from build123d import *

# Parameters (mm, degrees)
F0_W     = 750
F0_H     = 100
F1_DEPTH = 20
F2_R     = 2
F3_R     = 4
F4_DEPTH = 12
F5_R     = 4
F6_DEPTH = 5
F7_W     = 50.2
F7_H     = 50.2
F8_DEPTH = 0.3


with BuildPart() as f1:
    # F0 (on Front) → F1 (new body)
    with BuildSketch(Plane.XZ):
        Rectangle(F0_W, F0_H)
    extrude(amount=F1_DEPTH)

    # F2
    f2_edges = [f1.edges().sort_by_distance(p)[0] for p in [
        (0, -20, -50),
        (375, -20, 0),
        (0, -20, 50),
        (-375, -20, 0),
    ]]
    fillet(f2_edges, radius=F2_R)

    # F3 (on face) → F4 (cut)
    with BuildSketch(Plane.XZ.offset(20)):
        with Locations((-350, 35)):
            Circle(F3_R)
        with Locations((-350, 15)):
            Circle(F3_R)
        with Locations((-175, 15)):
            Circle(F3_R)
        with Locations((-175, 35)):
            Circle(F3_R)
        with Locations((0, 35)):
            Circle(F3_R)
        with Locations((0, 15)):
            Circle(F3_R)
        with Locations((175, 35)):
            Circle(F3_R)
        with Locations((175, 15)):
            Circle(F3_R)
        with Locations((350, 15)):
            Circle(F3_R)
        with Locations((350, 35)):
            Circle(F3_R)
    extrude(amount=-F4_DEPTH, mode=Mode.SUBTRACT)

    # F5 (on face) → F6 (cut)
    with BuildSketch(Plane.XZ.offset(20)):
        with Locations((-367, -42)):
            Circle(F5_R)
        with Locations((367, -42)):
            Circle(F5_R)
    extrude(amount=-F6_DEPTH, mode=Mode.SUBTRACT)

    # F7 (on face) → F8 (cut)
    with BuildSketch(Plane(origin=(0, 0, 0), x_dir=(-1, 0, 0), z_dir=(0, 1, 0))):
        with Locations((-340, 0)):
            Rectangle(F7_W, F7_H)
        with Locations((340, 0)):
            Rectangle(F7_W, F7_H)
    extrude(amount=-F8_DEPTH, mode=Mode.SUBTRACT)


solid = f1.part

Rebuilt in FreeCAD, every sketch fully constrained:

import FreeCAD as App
import Part
import Sketcher
from FreeCAD import Vector
Q = App.Units.Quantity


def edges_at(feature, points):
    """Names of the edges that pass closest to the given points."""
    edges = feature.Shape.Edges
    near = lambda p: min(range(len(edges)), key=lambda i: edges[i].distToShape(Part.Vertex(*p))[0])
    return sorted({f"Edge{near(p) + 1}" for p in points})

doc = App.newDocument("Part")
body = doc.addObject("PartDesign::Body", "Body")

sketch1 = doc.addObject("Sketcher::SketchObject", "Sketch")
body.addObject(sketch1)
sketch1.AttachmentSupport = (doc.XZ_Plane, [""])
sketch1.MapMode = "FlatFace"
sketch1.addGeometry([
    Part.LineSegment(Vector(-375, 50, 0), Vector(-375, -50, 0)),
    Part.LineSegment(Vector(-375, -50, 0), Vector(375, -50, 0)),
    Part.LineSegment(Vector(375, -50, 0), Vector(375, 50, 0)),
    Part.LineSegment(Vector(375, 50, 0), Vector(-375, 50, 0)),
], False)
sketch1.addConstraint([
    Sketcher.Constraint("Coincident", 0, 2, 1, 1),
    Sketcher.Constraint("Coincident", 1, 2, 2, 1),
    Sketcher.Constraint("Coincident", 2, 2, 3, 1),
    Sketcher.Constraint("Coincident", 3, 2, 0, 1),
    Sketcher.Constraint("Vertical", 0),
    Sketcher.Constraint("Horizontal", 1),
    Sketcher.Constraint("Vertical", 2),
    Sketcher.Constraint("Horizontal", 3),
    Sketcher.Constraint("Symmetric", 0, 2, 2, 2, -1, 1),
    Sketcher.Constraint("DistanceX", 1, 1, 1, 2, Q("750 mm")),
    Sketcher.Constraint("DistanceY", 0, 2, 0, 1, Q("100 mm")),
])
pad1 = doc.addObject("PartDesign::Pad", "Pad")
body.addObject(pad1)
pad1.Profile = sketch1
pad1.Length = 20
doc.recompute()

fillet = doc.addObject("PartDesign::Fillet", "Fillet")
body.addObject(fillet)
fillet.Base = (pad1, edges_at(pad1, [
    (0, -20, -50),
    (375, -20, 0),
    (0, -20, 50),
    (-375, -20, 0),
]))
fillet.Radius = 2

sketch2 = doc.addObject("Sketcher::SketchObject", "Sketch001")
body.addObject(sketch2)
sketch2.AttachmentSupport = (doc.XZ_Plane, [""])
sketch2.MapMode = "FlatFace"
sketch2.AttachmentOffset = App.Placement(Vector(0, 0, 20), App.Rotation())
sketch2.addGeometry([
    Part.Circle(Vector(-350, 35, 0), Vector(0, 0, 1), 4),
    Part.Circle(Vector(-350, 15, 0), Vector(0, 0, 1), 4),
    Part.Circle(Vector(-175, 15, 0), Vector(0, 0, 1), 4),
    Part.Circle(Vector(-175, 35, 0), Vector(0, 0, 1), 4),
    Part.Circle(Vector(0, 35, 0), Vector(0, 0, 1), 4),
    Part.Circle(Vector(0, 15, 0), Vector(0, 0, 1), 4),
    Part.Circle(Vector(175, 35, 0), Vector(0, 0, 1), 4),
    Part.Circle(Vector(175, 15, 0), Vector(0, 0, 1), 4),
    Part.Circle(Vector(350, 15, 0), Vector(0, 0, 1), 4),
    Part.Circle(Vector(350, 35, 0), Vector(0, 0, 1), 4),
], False)
sketch2.addConstraint([
    Sketcher.Constraint("Equal", 0, 1),
    Sketcher.Constraint("Equal", 1, 2),
    Sketcher.Constraint("Equal", 2, 3),
    Sketcher.Constraint("Equal", 3, 4),
    Sketcher.Constraint("Equal", 4, 5),
    Sketcher.Constraint("Equal", 5, 6),
    Sketcher.Constraint("Equal", 6, 7),
    Sketcher.Constraint("Equal", 7, 8),
    Sketcher.Constraint("Equal", 8, 9),
    Sketcher.Constraint("Symmetric", 3, 3, 6, 3, -2),
    Sketcher.Constraint("Symmetric", 2, 3, 7, 3, -2),
    Sketcher.Constraint("Symmetric", 1, 3, 8, 3, -2),
    Sketcher.Constraint("Symmetric", 0, 3, 9, 3, -2),
    Sketcher.Constraint("PointOnObject", 4, 3, -2),
    Sketcher.Constraint("PointOnObject", 5, 3, -2),
    Sketcher.Constraint("Horizontal", 1, 3, 2, 3),
    Sketcher.Constraint("Horizontal", 0, 3, 3, 3),
    Sketcher.Constraint("Horizontal", 3, 3, 4, 3),
    Sketcher.Constraint("Horizontal", 2, 3, 5, 3),
    Sketcher.Constraint("Vertical", 0, 3, 1, 3),
    Sketcher.Constraint("Vertical", 2, 3, 3, 3),
    Sketcher.Constraint("Diameter", 0, Q("8 mm")),
    Sketcher.Constraint("DistanceX", 0, 3, -1, 1, Q("350 mm")),
    Sketcher.Constraint("DistanceY", -1, 1, 0, 3, Q("35 mm")),
    Sketcher.Constraint("DistanceY", -1, 1, 1, 3, Q("15 mm")),
    Sketcher.Constraint("DistanceX", 2, 3, -1, 1, Q("175 mm")),
])
pocket1 = doc.addObject("PartDesign::Pocket", "Pocket")
body.addObject(pocket1)
pocket1.Profile = sketch2
pocket1.Length = 12

sketch3 = doc.addObject("Sketcher::SketchObject", "Sketch002")
body.addObject(sketch3)
sketch3.AttachmentSupport = (doc.XZ_Plane, [""])
sketch3.MapMode = "FlatFace"
sketch3.AttachmentOffset = App.Placement(Vector(0, 0, 20), App.Rotation())
sketch3.addGeometry([
    Part.Circle(Vector(-367, -42, 0), Vector(0, 0, 1), 4),
    Part.Circle(Vector(367, -42, 0), Vector(0, 0, 1), 4),
], False)
sketch3.addConstraint([
    Sketcher.Constraint("Equal", 0, 1),
    Sketcher.Constraint("Symmetric", 0, 3, 1, 3, -2),
    Sketcher.Constraint("Diameter", 0, Q("8 mm")),
    Sketcher.Constraint("DistanceX", 0, 3, -1, 1, Q("367 mm")),
    Sketcher.Constraint("DistanceY", 0, 3, -1, 1, Q("42 mm")),
])
pocket2 = doc.addObject("PartDesign::Pocket", "Pocket001")
body.addObject(pocket2)
pocket2.Profile = sketch3
pocket2.Length = 5

sketch4 = doc.addObject("Sketcher::SketchObject", "Sketch003")
body.addObject(sketch4)
sketch4.AttachmentSupport = (doc.XZ_Plane, [""])
sketch4.MapMode = "FlatFace"
sketch4.addGeometry([
    Part.LineSegment(Vector(365, 25, 0), Vector(365, -25, 0)),
    Part.LineSegment(Vector(365, -25, 0), Vector(315, -25, 0)),
    Part.LineSegment(Vector(315, -25, 0), Vector(315, 25, 0)),
    Part.LineSegment(Vector(315, 25, 0), Vector(365, 25, 0)),
    Part.LineSegment(Vector(-315, 25, 0), Vector(-315, -25, 0)),
    Part.LineSegment(Vector(-315, -25, 0), Vector(-365, -25, 0)),
    Part.LineSegment(Vector(-365, -25, 0), Vector(-365, 25, 0)),
    Part.LineSegment(Vector(-365, 25, 0), Vector(-315, 25, 0)),
], False)
sketch4.addConstraint([
    Sketcher.Constraint("Coincident", 0, 2, 1, 1),
    Sketcher.Constraint("Coincident", 1, 2, 2, 1),
    Sketcher.Constraint("Coincident", 2, 2, 3, 1),
    Sketcher.Constraint("Coincident", 3, 2, 0, 1),
    Sketcher.Constraint("Coincident", 4, 2, 5, 1),
    Sketcher.Constraint("Coincident", 5, 2, 6, 1),
    Sketcher.Constraint("Coincident", 6, 2, 7, 1),
    Sketcher.Constraint("Coincident", 7, 2, 4, 1),
    Sketcher.Constraint("Vertical", 0),
    Sketcher.Constraint("Horizontal", 1),
    Sketcher.Constraint("Vertical", 2),
    Sketcher.Constraint("Horizontal", 3),
    Sketcher.Constraint("Vertical", 4),
    Sketcher.Constraint("Horizontal", 5),
    Sketcher.Constraint("Vertical", 6),
    Sketcher.Constraint("Horizontal", 7),
    Sketcher.Constraint("Symmetric", 2, 2, 4, 2, -1, 1),
    Sketcher.Constraint("Symmetric", 0, 2, 6, 2, -1, 1),
    Sketcher.Constraint("Horizontal", 1, 2, 4, 2),
    Sketcher.Constraint("Equal", 7, 0),
    Sketcher.Constraint("DistanceX", 1, 2, 1, 1, Q("50.2 mm")),
    Sketcher.Constraint("DistanceX", 4, 2, 0, 2, Q("680 mm")),
])
pocket3 = doc.addObject("PartDesign::Pocket", "Pocket002")
body.addObject(pocket3)
pocket3.Profile = sketch4
pocket3.Length = 0.3
pocket3.Reversed = True

doc.recompute()
